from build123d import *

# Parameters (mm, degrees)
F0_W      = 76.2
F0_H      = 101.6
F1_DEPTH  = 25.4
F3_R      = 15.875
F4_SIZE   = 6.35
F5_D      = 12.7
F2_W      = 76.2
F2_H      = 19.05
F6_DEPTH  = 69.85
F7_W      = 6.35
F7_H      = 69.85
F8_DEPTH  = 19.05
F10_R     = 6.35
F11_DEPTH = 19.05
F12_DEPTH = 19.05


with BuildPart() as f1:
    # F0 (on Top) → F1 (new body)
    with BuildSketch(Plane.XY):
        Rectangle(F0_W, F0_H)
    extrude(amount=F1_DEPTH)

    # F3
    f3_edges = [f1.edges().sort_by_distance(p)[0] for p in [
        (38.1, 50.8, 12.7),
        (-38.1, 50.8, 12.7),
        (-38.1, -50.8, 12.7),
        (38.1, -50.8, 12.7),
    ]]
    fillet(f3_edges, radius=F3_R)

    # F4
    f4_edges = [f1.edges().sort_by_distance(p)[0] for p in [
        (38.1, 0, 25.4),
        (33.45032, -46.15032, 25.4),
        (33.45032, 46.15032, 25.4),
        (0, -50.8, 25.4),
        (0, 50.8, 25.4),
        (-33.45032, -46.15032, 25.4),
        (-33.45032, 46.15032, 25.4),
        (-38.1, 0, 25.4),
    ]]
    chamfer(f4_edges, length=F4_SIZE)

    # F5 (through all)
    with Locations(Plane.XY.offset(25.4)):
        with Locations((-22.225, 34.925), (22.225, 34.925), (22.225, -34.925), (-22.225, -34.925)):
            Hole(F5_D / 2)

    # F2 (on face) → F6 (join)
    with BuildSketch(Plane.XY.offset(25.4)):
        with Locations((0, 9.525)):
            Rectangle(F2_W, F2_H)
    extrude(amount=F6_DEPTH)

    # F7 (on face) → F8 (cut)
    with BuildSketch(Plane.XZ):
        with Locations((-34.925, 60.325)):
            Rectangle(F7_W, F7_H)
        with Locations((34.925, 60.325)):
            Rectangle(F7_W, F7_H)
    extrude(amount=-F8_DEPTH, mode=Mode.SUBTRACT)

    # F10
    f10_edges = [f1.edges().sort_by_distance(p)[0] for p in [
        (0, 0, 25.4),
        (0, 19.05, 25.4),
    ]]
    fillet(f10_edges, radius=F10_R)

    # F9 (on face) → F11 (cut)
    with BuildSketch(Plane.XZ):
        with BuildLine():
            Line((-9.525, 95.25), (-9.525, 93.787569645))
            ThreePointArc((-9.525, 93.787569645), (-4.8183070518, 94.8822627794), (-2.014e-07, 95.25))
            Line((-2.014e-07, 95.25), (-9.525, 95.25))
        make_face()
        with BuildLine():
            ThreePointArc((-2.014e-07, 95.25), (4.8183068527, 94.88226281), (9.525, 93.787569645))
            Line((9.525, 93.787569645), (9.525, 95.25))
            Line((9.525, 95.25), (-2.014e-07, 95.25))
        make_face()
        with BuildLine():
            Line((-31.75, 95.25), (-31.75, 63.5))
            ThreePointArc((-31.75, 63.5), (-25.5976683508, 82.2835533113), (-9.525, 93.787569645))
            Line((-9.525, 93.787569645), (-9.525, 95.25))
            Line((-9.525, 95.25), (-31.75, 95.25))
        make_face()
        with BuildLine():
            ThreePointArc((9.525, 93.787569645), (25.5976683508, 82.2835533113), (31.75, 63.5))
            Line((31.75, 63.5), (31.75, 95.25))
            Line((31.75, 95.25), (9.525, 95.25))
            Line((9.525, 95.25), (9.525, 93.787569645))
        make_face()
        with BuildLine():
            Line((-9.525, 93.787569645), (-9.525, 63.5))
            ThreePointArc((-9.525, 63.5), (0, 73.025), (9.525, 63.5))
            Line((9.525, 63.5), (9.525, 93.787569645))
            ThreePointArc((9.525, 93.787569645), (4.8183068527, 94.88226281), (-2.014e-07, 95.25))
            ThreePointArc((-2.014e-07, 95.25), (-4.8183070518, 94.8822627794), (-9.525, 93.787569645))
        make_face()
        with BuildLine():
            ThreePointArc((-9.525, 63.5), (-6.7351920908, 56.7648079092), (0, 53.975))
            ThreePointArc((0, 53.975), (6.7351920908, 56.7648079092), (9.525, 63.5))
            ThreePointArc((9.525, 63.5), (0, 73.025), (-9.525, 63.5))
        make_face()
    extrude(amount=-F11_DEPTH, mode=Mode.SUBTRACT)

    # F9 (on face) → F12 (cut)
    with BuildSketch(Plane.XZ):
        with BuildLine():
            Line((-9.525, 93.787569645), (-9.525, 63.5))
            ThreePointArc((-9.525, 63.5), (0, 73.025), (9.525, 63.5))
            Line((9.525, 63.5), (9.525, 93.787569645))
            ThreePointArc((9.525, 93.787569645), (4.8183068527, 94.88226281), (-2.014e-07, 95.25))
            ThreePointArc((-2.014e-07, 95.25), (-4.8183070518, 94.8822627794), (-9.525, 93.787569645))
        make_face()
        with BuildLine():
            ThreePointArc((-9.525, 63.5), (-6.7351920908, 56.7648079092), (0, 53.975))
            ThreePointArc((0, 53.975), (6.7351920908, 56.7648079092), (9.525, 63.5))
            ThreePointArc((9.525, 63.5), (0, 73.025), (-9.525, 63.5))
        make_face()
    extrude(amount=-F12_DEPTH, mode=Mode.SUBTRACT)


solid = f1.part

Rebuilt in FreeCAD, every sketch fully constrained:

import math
import FreeCAD as App
import Part
import Sketcher
Q = App.Units.Quantity


def edges_at(feature, points):
    """Names of the edges that pass closest to the given points."""
    edges = feature.Shape.Edges
    near = lambda p: min(range(len(edges)), key=lambda i: edges[i].distToShape(Part.Vertex(*p))[0])
    return sorted({f"Edge{near(p) + 1}" for p in points})


def add_polygon(sketch, points):
    """Adds a closed chain of lines whose ends are joined by coincident constraints."""
    first, n = sketch.GeometryCount, len(points)
    for a, b in zip(points, points[1:] + points[:1]):
        sketch.addGeometry(Part.LineSegment(App.Vector(*a, 0), App.Vector(*b, 0)), False)
    for i in range(n):
        sketch.addConstraint(Sketcher.Constraint("Coincident", first + i, 2, first + (i + 1) % n, 1))

doc = App.newDocument("Part")
params = doc.addObject("Spreadsheet::Sheet", "Params")
for row, (alias, value) in enumerate([
    ("sketch1_width", "3 in"),
    ("sketch1_height", "4 in"),
    ("pad1_length", "1 in"),
    ("fillet_radius", "0.625 in"),
    ("chamfer_size", "0.25 in"),
    ("sketch2_diameter", "0.5 in"),
    ("hole_diameter", "0.5 in"),
    ("sketch3_width", "3 in"),
    ("sketch3_height", "0.75 in"),
    ("pad2_length", "2.75 in"),
    ("sketch4_width", "0.25 in"),
    ("sketch4_height", "2.75 in"),
    ("pocket1_length", "0.75 in"),
    ("fillet2_radius", "0.25 in"),
    ("sketch5_radius", "1.25 in"),
    ("sketch5_radius2", "0.375 in"),
    ("sketch5_height", "1.25 in"),
    ("pocket2_length", "0.75 in"),
    ("sketch6_radius", "1.25 in"),
    ("sketch6_radius2", "0.375 in"),
    ("pocket3_length", "0.75 in"),
], start=1):
    params.set(f"A{row}", alias)
    params.set(f"B{row}", "=" + value)
    params.setAlias(f"B{row}", alias)

body = doc.addObject("PartDesign::Body", "Body")

# Sketch on XY plane
sketch1 = body.newObject("Sketcher::SketchObject", "Sketch")
sketch1.AttachmentSupport = (doc.getObject("XY_Plane"), [""])
sketch1.MapMode = "FlatFace"
add_polygon(sketch1, [(-38, 51), (-38, -51), (38, -51), (38, 51)])  # lines 0-3
sketch1.addConstraint([
    Sketcher.Constraint("Vertical", 0),
    Sketcher.Constraint("Horizontal", 1),
    Sketcher.Constraint("Vertical", 2),
    Sketcher.Constraint("Horizontal", 3),
    Sketcher.Constraint("Symmetric", 0, 2, 2, 2, -1, 1),
    Sketcher.Constraint("DistanceX", 1, 1, 1, 2, Q("3 in")),
    Sketcher.Constraint("DistanceY", 0, 2, 0, 1, Q("4 in")),
])
sketch1.setExpression("Constraints[9]", "Params.sketch1_width")
sketch1.setExpression("Constraints[10]", "Params.sketch1_height")
pad1 = body.newObject("PartDesign::Pad", "Pad")
pad1.Profile = sketch1
pad1.setExpression("Length", "Params.pad1_length")
doc.recompute()

fillet = body.newObject("PartDesign::Fillet", "Fillet")
fillet.Base = (pad1, edges_at(pad1, [
    (38.1, 50.8, 12.7),
    (-38.1, 50.8, 12.7),
    (-38.1, -50.8, 12.7),
    (38.1, -50.8, 12.7),
]))
fillet.setExpression("Radius", "Params.fillet_radius")
doc.recompute()

chamfer = body.newObject("PartDesign::Chamfer", "Chamfer")
chamfer.Base = (fillet, edges_at(fillet, [
    (38.1, 0, 25.4),
    (33.45, -46.15, 25.4),
    (33.45, 46.15, 25.4),
    (0, -50.8, 25.4),
    (0, 50.8, 25.4),
    (-33.45, -46.15, 25.4),
    (-33.45, 46.15, 25.4),
    (-38.1, 0, 25.4),
]))
chamfer.setExpression("Size", "Params.chamfer_size")

# Sketch on XY plane
sketch2 = body.newObject("Sketcher::SketchObject", "Sketch001")
sketch2.AttachmentSupport = (doc.getObject("XY_Plane"), [""])
sketch2.MapMode = "FlatFace"
sketch2.AttachmentOffset = App.Placement(App.Vector(0, 0, 1 * 25.4), App.Rotation())
sketch2.addGeometry([
    Part.Circle(App.Vector(-22, 35, 0), App.Vector(0, 0, 1), 6),
    Part.Circle(App.Vector(22, 35, 0), App.Vector(0, 0, 1), 6),
    Part.Circle(App.Vector(22, -35, 0), App.Vector(0, 0, 1), 6),
    Part.Circle(App.Vector(-22, -35, 0), App.Vector(0, 0, 1), 6),
], False)
sketch2.addConstraint([
    Sketcher.Constraint("Equal", 0, 1),
    Sketcher.Constraint("Equal", 1, 2),
    Sketcher.Constraint("Equal", 2, 3),
    Sketcher.Constraint("Symmetric", 0, 3, 2, 3, -1, 1),
    Sketcher.Constraint("Symmetric", 1, 3, 3, 3, -1, 1),
    Sketcher.Constraint("Symmetric", 0, 3, 1, 3, -2),
    Sketcher.Constraint("Diameter", 0, Q("0.5 in")),
    Sketcher.Constraint("DistanceX", 0, 3, 1, 3, Q("1.75 in")),
    Sketcher.Constraint("DistanceY", 2, 3, 1, 3, Q("2.75 in")),
])
sketch2.setExpression("Constraints[6]", "Params.sketch2_diameter")
doc.recompute()
hole = body.newObject("PartDesign::Hole", "Hole")
hole.Profile = sketch2
hole.ThreadType = "None"
hole.setExpression("Diameter", "Params.hole_diameter")
hole.DepthType = "ThroughAll"

# Sketch on XY plane
sketch3 = body.newObject("Sketcher::SketchObject", "Sketch002")
sketch3.AttachmentSupport = (doc.getObject("XY_Plane"), [""])
sketch3.MapMode = "FlatFace"
sketch3.AttachmentOffset = App.Placement(App.Vector(0, 0, 1 * 25.4), App.Rotation())
add_polygon(sketch3, [(-38, 19), (-38, 0), (38, 0), (38, 19)])  # lines 0-3
sketch3.addConstraint([
    Sketcher.Constraint("Vertical", 0),
    Sketcher.Constraint("Horizontal", 1),
    Sketcher.Constraint("Vertical", 2),
    Sketcher.Constraint("Horizontal", 3),
    Sketcher.Constraint("Symmetric", 0, 2, 1, 2, -1, 1),
    Sketcher.Constraint("DistanceX", 1, 1, 1, 2, Q("3 in")),
    Sketcher.Constraint("DistanceY", 0, 2, 0, 1, Q("0.75 in")),
])
sketch3.setExpression("Constraints[9]", "Params.sketch3_width")
sketch3.setExpression("Constraints[10]", "Params.sketch3_height")
pad2 = body.newObject("PartDesign::Pad", "Pad001")
pad2.Profile = sketch3
pad2.setExpression("Length", "Params.pad2_length")

# Sketch on XZ plane
sketch4 = body.newObject("Sketcher::SketchObject", "Sketch003")
sketch4.AttachmentSupport = (doc.getObject("XZ_Plane"), [""])
sketch4.MapMode = "FlatFace"
add_polygon(sketch4, [(-38, 95), (-38, 25), (-32, 25), (-32, 95)])  # lines 0-3
add_polygon(sketch4, [(32, 95), (32, 25), (38, 25), (38, 95)])  # lines 4-7
sketch4.addConstraint([
    Sketcher.Constraint("Vertical", 0),
    Sketcher.Constraint("Horizontal", 1),
    Sketcher.Constraint("Vertical", 2),
    Sketcher.Constraint("Horizontal", 3),
    Sketcher.Constraint("Vertical", 4),
    Sketcher.Constraint("Horizontal", 5),
    Sketcher.Constraint("Vertical", 6),
    Sketcher.Constraint("Horizontal", 7),
    Sketcher.Constraint("Symmetric", 1, 2, 4, 2, -2),
    Sketcher.Constraint("Symmetric", 3, 2, 6, 2, -2),
    Sketcher.Constraint("DistanceY", -1, 1, 0, 2, Q("1 in")),
    Sketcher.Constraint("DistanceX", 0, 2, 5, 2, Q("3 in")),
    Sketcher.Constraint("DistanceX", 1, 1, 1, 2, Q("0.25 in")),
    Sketcher.Constraint("DistanceY", 0, 2, 0, 1, Q("2.75 in")),
])
sketch4.setExpression("Constraints[20]", "Params.sketch4_width")
sketch4.setExpression("Constraints[21]", "Params.sketch4_height")
pocket1 = body.newObject("PartDesign::Pocket", "Pocket")
pocket1.Profile = sketch4
pocket1.setExpression("Length", "Params.pocket1_length")
doc.recompute()

fillet2 = body.newObject("PartDesign::Fillet", "Fillet001")
fillet2.Base = (pocket1, edges_at(pocket1, [(0, 0, 25.4), (0, 19.05, 25.4)]))
fillet2.setExpression("Radius", "Params.fillet2_radius")

# Sketch on XZ plane
sketch5 = body.newObject("Sketcher::SketchObject", "Sketch004")
sketch5.AttachmentSupport = (doc.getObject("XZ_Plane"), [""])
sketch5.MapMode = "FlatFace"
sketch5.addGeometry([
    Part.LineSegment(App.Vector(-32, 95, 0), App.Vector(-32, 64, 0)),  # 0
    Part.ArcOfCircle(Part.Circle(App.Vector(0, 64, 0), App.Vector(0, 0, 1), 32), math.radians(107), math.radians(180)),  # 1
    Part.LineSegment(App.Vector(-10, 94, 0), App.Vector(-10, 64, 0)),  # 2
    Part.ArcOfCircle(Part.Circle(App.Vector(0, 64, 0), App.Vector(0, 0, 1), 10), math.radians(180), math.radians(360)),  # 3
    Part.LineSegment(App.Vector(10, 64, 0), App.Vector(10, 94, 0)),  # 4
    Part.ArcOfCircle(Part.Circle(App.Vector(0, 64, 0), App.Vector(0, 0, 1), 32), math.radians(0), math.radians(73)),  # 5
    Part.LineSegment(App.Vector(32, 64, 0), App.Vector(32, 95, 0)),  # 6
    Part.LineSegment(App.Vector(32, 95, 0), App.Vector(-32, 95, 0)),  # 7
], False)
sketch5.addConstraint([
    Sketcher.Constraint("Tangent", 0, 2, 1, 2),
    Sketcher.Constraint("Coincident", 1, 1, 2, 1),
    Sketcher.Constraint("Tangent", 2, 2, 3, 1),
    Sketcher.Constraint("Tangent", 3, 2, 4, 1),
    Sketcher.Constraint("Coincident", 4, 2, 5, 2),
    Sketcher.Constraint("Tangent", 5, 1, 6, 1),
    Sketcher.Constraint("Coincident", 6, 2, 7, 1),
    Sketcher.Constraint("Coincident", 7, 2, 0, 1),
    Sketcher.Constraint("Vertical", 0),
    Sketcher.Constraint("Vertical", 2),
    Sketcher.Constraint("Vertical", 4),
    Sketcher.Constraint("Vertical", 6),
    Sketcher.Constraint("Horizontal", 7),
    Sketcher.Constraint("Coincident", 3, 3, 1, 3),
    Sketcher.Constraint("Coincident", 5, 3, 1, 3),
    Sketcher.Constraint("Equal", 1, 5),
    Sketcher.Constraint("PointOnObject", 1, 3, -2),
    Sketcher.Constraint("Radius", 1, Q("1.25 in")),
    Sketcher.Constraint("Radius", 3, Q("0.375 in")),
    Sketcher.Constraint("DistanceY", 0, 2, 0, 1, Q("1.25 in")),
    Sketcher.Constraint("DistanceY", -1, 1, 1, 3, Q("2.5 in")),
])
sketch5.setExpression("Constraints[17]", "Params.sketch5_radius")
sketch5.setExpression("Constraints[18]", "Params.sketch5_radius2")
sketch5.setExpression("Constraints[19]", "Params.sketch5_height")
pocket2 = body.newObject("PartDesign::Pocket", "Pocket001")
pocket2.Profile = sketch5
pocket2.setExpression("Length", "Params.pocket2_length")

# Sketch on XZ plane
sketch6 = body.newObject("Sketcher::SketchObject", "Sketch005")
sketch6.AttachmentSupport = (doc.getObject("XZ_Plane"), [""])
sketch6.MapMode = "FlatFace"
sketch6.addGeometry([
    Part.LineSegment(App.Vector(-10, 94, 0), App.Vector(-10, 64, 0)),  # 0
    Part.ArcOfCircle(Part.Circle(App.Vector(0, 64, 0), App.Vector(0, 0, 1), 10), math.radians(180), math.radians(360)),  # 1
    Part.LineSegment(App.Vector(10, 64, 0), App.Vector(10, 94, 0)),  # 2
    Part.ArcOfCircle(Part.Circle(App.Vector(0, 64, 0), App.Vector(0, 0, 1), 32), math.radians(72.54), math.radians(90)),  # 3
    Part.ArcOfCircle(Part.Circle(App.Vector(0, 64, 0), App.Vector(0, 0, 1), 32), math.radians(90), math.radians(107.46)),  # 4
], False)
sketch6.addConstraint([
    Sketcher.Constraint("Tangent", 0, 2, 1, 1),
    Sketcher.Constraint("Tangent", 1, 2, 2, 1),
    Sketcher.Constraint("Coincident", 2, 2, 3, 1),
    Sketcher.Constraint("Tangent", 3, 2, 4, 1),
    Sketcher.Constraint("Coincident", 4, 2, 0, 1),
    Sketcher.Constraint("Vertical", 0),
    Sketcher.Constraint("Vertical", 2),
    Sketcher.Constraint("Coincident", 3, 3, 1, 3),
    Sketcher.Constraint("Equal", 3, 4),
    Sketcher.Constraint("PointOnObject", 1, 3, -2),
    Sketcher.Constraint("PointOnObject", 3, 2, -2),
    Sketcher.Constraint("Radius", 3, Q("1.25 in")),
    Sketcher.Constraint("Radius", 1, Q("0.375 in")),
    Sketcher.Constraint("DistanceY", -1, 1, 1, 3, Q("2.5 in")),
])
sketch6.setExpression("Constraints[11]", "Params.sketch6_radius")
sketch6.setExpression("Constraints[12]", "Params.sketch6_radius2")
pocket3 = body.newObject("PartDesign::Pocket", "Pocket002")
pocket3.Profile = sketch6
pocket3.setExpression("Length", "Params.pocket3_length")

doc.recompute()
